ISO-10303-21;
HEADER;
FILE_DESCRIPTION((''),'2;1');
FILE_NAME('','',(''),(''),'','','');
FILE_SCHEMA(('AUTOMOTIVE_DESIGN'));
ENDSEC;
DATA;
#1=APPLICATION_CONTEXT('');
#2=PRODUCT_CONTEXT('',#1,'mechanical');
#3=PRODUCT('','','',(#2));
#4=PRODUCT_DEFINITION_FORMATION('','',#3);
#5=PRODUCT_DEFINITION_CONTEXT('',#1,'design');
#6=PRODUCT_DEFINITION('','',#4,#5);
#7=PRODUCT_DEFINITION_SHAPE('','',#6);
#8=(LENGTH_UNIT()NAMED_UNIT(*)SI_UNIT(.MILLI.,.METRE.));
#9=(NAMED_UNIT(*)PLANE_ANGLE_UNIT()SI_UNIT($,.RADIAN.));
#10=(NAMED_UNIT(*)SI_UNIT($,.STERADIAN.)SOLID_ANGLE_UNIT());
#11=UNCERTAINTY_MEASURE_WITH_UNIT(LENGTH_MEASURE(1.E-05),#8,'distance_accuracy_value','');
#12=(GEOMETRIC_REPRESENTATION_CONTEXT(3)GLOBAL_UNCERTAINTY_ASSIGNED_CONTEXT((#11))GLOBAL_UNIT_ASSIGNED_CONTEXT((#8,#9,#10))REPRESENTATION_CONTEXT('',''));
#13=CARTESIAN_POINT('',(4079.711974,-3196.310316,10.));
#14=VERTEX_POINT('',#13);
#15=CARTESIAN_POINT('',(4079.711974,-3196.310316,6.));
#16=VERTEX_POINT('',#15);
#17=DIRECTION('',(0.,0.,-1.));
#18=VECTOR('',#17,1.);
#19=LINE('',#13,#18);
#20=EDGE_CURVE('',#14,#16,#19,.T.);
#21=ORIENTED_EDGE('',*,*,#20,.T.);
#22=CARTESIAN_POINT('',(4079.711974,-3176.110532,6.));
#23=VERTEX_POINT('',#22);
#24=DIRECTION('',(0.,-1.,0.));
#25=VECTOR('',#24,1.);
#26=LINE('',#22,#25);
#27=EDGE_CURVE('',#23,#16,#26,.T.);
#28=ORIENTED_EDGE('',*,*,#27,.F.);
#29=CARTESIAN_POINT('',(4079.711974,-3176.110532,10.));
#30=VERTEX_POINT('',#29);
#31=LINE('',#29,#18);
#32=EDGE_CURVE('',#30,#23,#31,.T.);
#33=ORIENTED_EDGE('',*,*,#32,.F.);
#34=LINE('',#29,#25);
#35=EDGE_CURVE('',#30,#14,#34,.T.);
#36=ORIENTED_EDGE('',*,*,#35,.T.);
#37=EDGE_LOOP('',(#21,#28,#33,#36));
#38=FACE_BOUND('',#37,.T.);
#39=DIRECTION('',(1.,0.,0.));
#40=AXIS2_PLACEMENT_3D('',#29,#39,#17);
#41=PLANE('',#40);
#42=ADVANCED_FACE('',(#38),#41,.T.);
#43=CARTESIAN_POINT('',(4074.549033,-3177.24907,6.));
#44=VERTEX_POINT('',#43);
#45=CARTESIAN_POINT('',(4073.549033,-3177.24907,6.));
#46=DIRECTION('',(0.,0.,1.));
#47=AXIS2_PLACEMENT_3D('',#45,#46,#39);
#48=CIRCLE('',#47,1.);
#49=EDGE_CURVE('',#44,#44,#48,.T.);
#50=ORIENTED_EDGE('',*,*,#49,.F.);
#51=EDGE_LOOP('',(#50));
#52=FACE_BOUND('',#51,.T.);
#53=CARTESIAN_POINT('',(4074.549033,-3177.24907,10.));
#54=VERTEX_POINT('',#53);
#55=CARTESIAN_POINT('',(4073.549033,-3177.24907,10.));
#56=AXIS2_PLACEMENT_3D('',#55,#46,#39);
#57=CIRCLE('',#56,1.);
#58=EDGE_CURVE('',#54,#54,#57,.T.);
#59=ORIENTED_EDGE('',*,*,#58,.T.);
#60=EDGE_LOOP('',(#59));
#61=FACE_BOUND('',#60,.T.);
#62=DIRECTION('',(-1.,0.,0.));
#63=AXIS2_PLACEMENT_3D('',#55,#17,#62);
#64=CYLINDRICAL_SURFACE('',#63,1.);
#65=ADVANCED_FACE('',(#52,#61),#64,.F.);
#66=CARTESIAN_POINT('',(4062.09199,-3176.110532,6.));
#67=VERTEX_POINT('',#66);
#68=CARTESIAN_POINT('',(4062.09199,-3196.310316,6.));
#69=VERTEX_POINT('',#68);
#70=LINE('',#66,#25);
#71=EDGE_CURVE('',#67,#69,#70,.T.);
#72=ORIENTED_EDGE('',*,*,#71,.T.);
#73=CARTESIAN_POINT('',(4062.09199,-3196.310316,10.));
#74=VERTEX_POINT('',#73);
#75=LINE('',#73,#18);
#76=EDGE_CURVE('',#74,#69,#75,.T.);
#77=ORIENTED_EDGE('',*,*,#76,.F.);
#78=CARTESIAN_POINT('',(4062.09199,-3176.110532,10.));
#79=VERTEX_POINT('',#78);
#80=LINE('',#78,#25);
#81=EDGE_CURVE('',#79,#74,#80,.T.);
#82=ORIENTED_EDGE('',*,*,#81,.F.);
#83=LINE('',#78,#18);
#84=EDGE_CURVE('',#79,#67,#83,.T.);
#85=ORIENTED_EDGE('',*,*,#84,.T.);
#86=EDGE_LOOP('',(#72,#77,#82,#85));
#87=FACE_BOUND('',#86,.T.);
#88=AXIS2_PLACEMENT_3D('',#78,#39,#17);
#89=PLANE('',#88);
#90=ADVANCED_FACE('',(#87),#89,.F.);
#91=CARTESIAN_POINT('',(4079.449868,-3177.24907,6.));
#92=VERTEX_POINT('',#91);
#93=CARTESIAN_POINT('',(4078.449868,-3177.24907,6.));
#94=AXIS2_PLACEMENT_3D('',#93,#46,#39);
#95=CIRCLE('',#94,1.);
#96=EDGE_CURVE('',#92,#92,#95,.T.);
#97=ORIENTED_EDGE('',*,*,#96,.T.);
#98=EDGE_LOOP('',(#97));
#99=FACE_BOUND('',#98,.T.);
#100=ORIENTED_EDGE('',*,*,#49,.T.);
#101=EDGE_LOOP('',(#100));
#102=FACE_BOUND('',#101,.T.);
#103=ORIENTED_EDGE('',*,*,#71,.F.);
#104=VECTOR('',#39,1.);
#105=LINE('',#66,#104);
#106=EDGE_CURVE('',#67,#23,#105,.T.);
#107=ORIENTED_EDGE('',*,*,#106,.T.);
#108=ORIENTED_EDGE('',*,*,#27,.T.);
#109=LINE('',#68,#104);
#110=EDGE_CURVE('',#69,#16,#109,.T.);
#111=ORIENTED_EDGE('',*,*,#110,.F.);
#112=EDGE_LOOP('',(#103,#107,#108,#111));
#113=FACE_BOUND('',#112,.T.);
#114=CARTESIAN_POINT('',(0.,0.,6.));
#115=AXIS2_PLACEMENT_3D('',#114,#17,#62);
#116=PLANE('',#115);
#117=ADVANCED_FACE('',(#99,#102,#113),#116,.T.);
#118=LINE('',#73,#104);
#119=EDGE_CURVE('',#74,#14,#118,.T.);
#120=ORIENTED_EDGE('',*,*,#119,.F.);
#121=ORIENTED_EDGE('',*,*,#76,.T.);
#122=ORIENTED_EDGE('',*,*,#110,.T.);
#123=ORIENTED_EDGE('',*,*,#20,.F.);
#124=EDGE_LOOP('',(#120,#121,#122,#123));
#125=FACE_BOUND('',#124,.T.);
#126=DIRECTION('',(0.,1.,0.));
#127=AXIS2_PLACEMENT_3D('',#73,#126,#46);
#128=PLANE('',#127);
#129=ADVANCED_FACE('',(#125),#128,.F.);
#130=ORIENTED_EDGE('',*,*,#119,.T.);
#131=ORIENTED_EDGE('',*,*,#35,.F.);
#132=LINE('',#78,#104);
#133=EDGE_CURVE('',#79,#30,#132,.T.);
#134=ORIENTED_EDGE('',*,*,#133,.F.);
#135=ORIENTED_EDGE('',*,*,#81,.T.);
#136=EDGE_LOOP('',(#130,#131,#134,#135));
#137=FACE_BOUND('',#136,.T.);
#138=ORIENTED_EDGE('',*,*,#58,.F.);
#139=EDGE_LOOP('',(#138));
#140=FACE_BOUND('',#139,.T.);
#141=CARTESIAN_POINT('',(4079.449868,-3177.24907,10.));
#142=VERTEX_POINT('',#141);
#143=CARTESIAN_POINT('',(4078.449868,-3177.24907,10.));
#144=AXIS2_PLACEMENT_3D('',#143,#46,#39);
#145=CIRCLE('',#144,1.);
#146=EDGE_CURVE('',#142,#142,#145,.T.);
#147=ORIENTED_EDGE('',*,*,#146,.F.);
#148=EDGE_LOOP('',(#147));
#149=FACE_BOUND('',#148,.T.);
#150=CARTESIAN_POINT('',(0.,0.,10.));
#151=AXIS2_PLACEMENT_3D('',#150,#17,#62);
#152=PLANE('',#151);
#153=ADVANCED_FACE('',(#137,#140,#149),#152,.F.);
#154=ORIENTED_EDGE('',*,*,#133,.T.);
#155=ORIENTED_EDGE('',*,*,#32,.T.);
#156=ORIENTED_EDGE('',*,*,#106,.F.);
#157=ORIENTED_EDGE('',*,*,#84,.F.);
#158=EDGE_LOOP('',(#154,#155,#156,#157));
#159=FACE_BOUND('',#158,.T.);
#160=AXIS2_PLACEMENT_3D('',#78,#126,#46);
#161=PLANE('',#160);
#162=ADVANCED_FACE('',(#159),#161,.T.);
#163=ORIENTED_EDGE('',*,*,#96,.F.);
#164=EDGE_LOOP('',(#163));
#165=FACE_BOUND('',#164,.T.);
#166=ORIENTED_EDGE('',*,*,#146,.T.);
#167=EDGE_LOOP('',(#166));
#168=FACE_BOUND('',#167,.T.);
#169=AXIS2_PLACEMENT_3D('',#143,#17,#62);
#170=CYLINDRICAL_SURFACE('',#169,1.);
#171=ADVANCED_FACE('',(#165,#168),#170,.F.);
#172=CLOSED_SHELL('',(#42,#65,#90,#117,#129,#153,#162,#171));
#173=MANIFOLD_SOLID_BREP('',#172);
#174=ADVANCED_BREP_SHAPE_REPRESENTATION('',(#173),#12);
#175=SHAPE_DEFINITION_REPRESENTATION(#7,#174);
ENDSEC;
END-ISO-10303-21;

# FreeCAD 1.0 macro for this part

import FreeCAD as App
import Part
import Sketcher

doc = App.newDocument("Part")
body = doc.addObject("PartDesign::Body", "Body")

sketch1 = body.newObject("Sketcher::SketchObject", "Sketch")
sketch1.AttachmentSupport = (doc.getObject("XY_Plane"), [""])
sketch1.MapMode = "FlatFace"
sketch1.AttachmentOffset = App.Placement(App.Vector(0, 0, 6), App.Rotation())
sketch1.addGeometry(Part.LineSegment(App.Vector(4062.1, -3176.1, 0), App.Vector(4062.1, -3196.3, 0)), False)
sketch1.addGeometry(Part.LineSegment(App.Vector(4062.1, -3196.3, 0), App.Vector(4079.7, -3196.3, 0)), False)
sketch1.addGeometry(Part.LineSegment(App.Vector(4079.7, -3196.3, 0), App.Vector(4079.7, -3176.1, 0)), False)
sketch1.addGeometry(Part.LineSegment(App.Vector(4079.7, -3176.1, 0), App.Vector(4062.1, -3176.1, 0)), False)
sketch1.addGeometry(Part.Circle(App.Vector(4073.5, -3177.2, 0), App.Vector(0, 0, 1), 1), False)
sketch1.addGeometry(Part.Circle(App.Vector(4078.4, -3177.2, 0), App.Vector(0, 0, 1), 1), False)
sketch1.addConstraint(Sketcher.Constraint("Coincident", 0, 2, 1, 1))
sketch1.addConstraint(Sketcher.Constraint("Coincident", 1, 2, 2, 1))
sketch1.addConstraint(Sketcher.Constraint("Coincident", 2, 2, 3, 1))
sketch1.addConstraint(Sketcher.Constraint("Coincident", 3, 2, 0, 1))
sketch1.addConstraint(Sketcher.Constraint("Vertical", 0))
sketch1.addConstraint(Sketcher.Constraint("Horizontal", 1))
sketch1.addConstraint(Sketcher.Constraint("Vertical", 2))
sketch1.addConstraint(Sketcher.Constraint("Horizontal", 3))
sketch1.addConstraint(Sketcher.Constraint("Equal", 4, 5))
sketch1.addConstraint(Sketcher.Constraint("Horizontal", 4, 3, 5, 3))
sketch1.addConstraint(Sketcher.Constraint("Diameter", 4, 2.0))
sketch1.addConstraint(Sketcher.Constraint("DistanceX", 1, 1, 1, 2, 17.619984))
sketch1.addConstraint(Sketcher.Constraint("DistanceY", 0, 2, 0, 1, 20.199784))
sketch1.addConstraint(Sketcher.Constraint("DistanceY", 4, 3, -1, 1, 3177.24907))
sketch1.addConstraint(Sketcher.Constraint("DistanceX", -1, 1, 5, 3, 4078.449868))
sketch1.addConstraint(Sketcher.Constraint("DistanceX", -1, 1, 0, 2, 4062.09199))
sketch1.addConstraint(Sketcher.Constraint("DistanceX", 4, 3, 1, 2, 6.162941))
sketch1.addConstraint(Sketcher.Constraint("DistanceY", 0, 2, -1, 1, 3196.310316))
pad1 = body.newObject("PartDesign::Pad", "Pad")
pad1.Profile = sketch1
pad1.Length = 4

doc.recompute()
